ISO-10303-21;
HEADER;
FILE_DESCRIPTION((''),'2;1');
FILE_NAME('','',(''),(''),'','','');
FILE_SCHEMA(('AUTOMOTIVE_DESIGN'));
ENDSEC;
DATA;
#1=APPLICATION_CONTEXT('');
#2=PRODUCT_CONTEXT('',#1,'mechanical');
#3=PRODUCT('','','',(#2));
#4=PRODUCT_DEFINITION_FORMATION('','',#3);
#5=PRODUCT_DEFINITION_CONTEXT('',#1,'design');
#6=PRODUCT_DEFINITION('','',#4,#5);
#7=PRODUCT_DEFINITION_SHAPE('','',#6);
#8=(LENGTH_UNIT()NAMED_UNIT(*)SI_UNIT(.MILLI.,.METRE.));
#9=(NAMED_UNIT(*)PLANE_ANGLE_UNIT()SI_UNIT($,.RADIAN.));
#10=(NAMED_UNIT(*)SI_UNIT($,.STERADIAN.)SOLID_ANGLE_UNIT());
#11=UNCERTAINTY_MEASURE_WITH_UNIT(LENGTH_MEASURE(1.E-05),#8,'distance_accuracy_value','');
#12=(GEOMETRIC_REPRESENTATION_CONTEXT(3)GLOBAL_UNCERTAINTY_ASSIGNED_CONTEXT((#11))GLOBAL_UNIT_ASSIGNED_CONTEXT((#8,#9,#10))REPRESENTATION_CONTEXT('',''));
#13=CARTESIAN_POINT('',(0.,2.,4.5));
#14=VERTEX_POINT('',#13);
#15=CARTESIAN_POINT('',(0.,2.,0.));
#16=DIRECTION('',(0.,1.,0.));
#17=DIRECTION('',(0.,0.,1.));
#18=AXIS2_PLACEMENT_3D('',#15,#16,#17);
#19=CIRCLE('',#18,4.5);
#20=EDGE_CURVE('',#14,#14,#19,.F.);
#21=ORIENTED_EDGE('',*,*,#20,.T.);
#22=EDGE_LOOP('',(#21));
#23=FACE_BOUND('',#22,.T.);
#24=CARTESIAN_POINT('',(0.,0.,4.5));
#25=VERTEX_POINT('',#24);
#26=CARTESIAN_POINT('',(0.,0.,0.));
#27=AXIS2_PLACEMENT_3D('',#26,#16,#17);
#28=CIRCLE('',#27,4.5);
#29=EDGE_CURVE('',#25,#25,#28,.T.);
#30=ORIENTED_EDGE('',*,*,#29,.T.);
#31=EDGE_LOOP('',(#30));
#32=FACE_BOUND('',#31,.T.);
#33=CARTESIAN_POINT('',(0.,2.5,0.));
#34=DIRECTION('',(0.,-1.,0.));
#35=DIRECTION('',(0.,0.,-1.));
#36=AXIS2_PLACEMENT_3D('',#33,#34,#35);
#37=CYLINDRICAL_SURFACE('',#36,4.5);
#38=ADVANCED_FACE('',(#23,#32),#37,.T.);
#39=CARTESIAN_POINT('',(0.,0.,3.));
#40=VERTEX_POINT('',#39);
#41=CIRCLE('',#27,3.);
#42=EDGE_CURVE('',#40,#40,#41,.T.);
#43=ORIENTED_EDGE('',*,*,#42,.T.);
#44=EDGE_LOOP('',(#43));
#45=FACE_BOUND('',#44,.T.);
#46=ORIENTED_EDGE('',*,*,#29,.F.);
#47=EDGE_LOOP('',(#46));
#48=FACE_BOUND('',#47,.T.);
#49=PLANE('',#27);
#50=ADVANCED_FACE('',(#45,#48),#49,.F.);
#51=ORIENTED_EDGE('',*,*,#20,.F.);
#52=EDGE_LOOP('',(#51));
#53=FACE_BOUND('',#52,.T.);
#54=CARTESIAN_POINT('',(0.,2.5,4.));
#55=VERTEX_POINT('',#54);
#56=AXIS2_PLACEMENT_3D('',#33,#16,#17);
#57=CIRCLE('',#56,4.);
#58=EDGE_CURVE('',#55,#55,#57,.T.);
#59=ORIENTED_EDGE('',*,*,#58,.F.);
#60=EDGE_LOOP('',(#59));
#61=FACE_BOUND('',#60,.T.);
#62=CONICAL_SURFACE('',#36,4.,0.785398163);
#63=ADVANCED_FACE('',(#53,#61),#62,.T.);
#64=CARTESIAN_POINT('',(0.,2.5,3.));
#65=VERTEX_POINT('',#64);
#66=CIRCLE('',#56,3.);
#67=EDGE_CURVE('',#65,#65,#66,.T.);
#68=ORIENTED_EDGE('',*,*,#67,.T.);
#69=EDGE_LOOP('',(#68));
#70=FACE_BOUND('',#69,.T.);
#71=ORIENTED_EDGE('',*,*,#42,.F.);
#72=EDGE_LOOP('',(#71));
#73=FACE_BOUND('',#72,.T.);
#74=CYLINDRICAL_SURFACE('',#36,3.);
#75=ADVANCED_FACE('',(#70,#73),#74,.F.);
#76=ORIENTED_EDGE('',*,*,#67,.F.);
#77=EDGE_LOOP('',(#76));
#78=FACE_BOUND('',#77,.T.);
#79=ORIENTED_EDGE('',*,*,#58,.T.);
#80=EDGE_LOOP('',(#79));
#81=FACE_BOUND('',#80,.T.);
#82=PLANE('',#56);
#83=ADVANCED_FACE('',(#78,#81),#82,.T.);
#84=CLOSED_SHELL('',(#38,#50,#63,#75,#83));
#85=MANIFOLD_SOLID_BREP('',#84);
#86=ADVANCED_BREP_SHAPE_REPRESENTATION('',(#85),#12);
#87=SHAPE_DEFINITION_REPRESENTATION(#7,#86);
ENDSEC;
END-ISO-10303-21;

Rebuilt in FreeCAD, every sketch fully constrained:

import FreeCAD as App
import Part
import Sketcher
from FreeCAD import Vector
Q = App.Units.Quantity


def edges_at(feature, points):
    """Names of the edges that pass closest to the given points."""
    edges = feature.Shape.Edges
    near = lambda p: min(range(len(edges)), key=lambda i: edges[i].distToShape(Part.Vertex(*p))[0])
    return sorted({f"Edge{near(p) + 1}" for p in points})

doc = App.newDocument("Part")
body = doc.addObject("PartDesign::Body", "Body")

# Sketch on XZ plane
sketch1 = body.newObject("Sketcher::SketchObject", "Sketch")
sketch1.AttachmentSupport = (doc.getObject("XZ_Plane"), [""])
sketch1.MapMode = "FlatFace"
sketch1.addGeometry(Part.Circle(Vector(0, 0, 0), Vector(0, 0, 1), 4.5), False)
sketch1.addGeometry(Part.Circle(Vector(0, 0, 0), Vector(0, 0, 1), 3), False)
sketch1.addConstraint(Sketcher.Constraint("Coincident", 0, 3, -1, 1))
sketch1.addConstraint(Sketcher.Constraint("Coincident", 1, 3, -1, 1))
sketch1.addConstraint(Sketcher.Constraint("Diameter", 0, Q("9 mm")))
sketch1.addConstraint(Sketcher.Constraint("Diameter", 1, Q("6 mm")))
pad1 = body.newObject("PartDesign::Pad", "Pad")
pad1.Profile = sketch1
pad1.Length = 2.5
pad1.Reversed = True
doc.recompute()

chamfer = body.newObject("PartDesign::Chamfer", "Chamfer")
chamfer.Base = (pad1, edges_at(pad1, [(0, 2.5, -4.5)]))
chamfer.Size = 0.5

doc.recompute()
